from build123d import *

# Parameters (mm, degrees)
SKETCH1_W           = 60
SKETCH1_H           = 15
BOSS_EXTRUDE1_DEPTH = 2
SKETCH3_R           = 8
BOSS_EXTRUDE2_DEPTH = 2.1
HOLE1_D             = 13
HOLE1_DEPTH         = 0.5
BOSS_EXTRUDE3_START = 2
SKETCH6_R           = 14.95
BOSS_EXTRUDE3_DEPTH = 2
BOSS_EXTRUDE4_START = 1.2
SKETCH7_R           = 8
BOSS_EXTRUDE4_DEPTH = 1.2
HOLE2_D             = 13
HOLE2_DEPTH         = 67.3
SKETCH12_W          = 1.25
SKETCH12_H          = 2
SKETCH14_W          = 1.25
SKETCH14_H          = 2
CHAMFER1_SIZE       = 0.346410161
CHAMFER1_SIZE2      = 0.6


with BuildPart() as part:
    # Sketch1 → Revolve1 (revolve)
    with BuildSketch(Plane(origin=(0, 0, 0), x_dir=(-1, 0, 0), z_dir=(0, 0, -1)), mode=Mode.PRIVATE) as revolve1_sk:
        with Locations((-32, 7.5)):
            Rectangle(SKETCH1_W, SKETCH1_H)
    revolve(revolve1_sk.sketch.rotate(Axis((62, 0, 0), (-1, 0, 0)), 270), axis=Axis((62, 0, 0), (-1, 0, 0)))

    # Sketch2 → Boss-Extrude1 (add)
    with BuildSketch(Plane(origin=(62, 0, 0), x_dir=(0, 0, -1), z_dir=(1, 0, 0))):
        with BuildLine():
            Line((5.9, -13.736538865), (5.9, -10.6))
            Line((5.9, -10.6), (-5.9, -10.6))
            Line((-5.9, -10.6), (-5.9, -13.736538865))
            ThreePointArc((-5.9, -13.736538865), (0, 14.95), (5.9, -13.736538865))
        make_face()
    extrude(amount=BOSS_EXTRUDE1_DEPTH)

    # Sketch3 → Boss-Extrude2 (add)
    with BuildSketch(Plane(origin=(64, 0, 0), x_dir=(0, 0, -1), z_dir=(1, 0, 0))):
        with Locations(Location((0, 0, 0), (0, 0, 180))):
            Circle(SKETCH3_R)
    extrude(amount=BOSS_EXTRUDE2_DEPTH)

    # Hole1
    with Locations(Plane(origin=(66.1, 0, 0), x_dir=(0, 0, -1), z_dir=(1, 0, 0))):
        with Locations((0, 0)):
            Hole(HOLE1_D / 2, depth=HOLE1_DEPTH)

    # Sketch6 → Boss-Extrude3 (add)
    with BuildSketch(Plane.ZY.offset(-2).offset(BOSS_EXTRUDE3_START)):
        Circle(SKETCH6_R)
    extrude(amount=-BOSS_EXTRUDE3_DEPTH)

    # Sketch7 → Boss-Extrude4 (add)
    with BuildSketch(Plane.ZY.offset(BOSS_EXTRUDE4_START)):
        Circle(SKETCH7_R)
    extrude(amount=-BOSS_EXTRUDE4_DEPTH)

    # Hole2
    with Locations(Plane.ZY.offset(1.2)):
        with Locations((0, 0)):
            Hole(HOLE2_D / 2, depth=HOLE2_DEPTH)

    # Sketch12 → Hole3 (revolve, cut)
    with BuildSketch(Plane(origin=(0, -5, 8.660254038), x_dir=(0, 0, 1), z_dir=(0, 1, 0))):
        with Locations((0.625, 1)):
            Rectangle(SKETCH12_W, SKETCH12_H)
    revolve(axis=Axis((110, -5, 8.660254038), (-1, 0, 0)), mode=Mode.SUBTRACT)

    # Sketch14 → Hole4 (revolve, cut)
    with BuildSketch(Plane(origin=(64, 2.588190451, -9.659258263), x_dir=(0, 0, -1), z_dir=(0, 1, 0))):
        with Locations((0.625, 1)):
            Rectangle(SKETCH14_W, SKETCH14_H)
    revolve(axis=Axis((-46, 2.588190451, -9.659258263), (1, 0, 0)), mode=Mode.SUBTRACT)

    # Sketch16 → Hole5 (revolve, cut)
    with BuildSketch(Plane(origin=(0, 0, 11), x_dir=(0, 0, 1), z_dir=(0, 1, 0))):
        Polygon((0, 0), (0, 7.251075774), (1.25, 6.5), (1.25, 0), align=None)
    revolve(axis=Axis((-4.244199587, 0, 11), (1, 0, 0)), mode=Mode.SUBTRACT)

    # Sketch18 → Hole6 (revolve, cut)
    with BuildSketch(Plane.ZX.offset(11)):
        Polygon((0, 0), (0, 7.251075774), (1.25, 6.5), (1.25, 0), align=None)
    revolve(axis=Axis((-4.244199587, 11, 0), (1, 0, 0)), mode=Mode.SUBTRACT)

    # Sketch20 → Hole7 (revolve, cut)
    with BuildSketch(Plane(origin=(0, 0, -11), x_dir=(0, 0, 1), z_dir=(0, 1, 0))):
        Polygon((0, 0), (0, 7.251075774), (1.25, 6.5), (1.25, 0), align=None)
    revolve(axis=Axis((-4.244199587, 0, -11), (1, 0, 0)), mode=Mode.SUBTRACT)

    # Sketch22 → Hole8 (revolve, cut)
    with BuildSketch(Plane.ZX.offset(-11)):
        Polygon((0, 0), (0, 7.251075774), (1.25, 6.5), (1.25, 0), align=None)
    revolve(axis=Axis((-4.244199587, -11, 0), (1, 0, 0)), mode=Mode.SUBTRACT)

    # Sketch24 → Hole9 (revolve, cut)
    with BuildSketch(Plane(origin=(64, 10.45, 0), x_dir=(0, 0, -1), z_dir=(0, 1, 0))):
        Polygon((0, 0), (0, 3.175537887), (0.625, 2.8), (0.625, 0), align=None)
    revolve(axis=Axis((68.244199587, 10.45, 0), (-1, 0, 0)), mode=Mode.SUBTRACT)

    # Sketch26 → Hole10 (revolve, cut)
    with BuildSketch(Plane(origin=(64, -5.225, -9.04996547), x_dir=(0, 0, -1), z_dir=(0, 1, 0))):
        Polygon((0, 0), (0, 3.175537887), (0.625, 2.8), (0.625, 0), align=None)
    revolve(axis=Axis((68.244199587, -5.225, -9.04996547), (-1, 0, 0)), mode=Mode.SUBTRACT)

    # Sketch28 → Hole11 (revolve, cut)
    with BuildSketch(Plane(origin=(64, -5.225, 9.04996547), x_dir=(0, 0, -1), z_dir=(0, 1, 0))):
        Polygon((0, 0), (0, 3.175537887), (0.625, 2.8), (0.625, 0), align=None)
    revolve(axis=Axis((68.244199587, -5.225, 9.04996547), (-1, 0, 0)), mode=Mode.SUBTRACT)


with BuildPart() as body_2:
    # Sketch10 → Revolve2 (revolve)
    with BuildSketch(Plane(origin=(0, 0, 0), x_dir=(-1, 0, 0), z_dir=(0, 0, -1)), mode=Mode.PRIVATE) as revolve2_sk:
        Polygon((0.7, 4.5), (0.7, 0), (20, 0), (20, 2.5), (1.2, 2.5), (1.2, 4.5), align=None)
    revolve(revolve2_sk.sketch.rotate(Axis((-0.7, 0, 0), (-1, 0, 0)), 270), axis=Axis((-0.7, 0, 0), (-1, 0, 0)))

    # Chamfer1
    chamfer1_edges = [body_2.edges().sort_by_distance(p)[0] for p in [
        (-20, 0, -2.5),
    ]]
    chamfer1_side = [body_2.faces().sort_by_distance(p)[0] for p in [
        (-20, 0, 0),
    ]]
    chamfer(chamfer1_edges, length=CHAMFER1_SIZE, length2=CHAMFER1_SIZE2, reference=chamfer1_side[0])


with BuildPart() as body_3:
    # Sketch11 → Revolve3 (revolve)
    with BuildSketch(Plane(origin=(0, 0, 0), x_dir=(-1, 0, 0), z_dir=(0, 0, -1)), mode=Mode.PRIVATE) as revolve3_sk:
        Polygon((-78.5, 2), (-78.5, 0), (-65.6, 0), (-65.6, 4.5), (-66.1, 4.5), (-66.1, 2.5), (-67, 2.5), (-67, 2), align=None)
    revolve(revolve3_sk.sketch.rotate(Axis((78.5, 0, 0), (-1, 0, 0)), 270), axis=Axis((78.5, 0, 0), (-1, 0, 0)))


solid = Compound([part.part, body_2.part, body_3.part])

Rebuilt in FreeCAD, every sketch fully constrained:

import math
import FreeCAD as App
import Part
import Sketcher
from FreeCAD import Vector
Q = App.Units.Quantity


def edges_at(feature, points):
    """Names of the edges that pass closest to the given points."""
    edges = feature.Shape.Edges
    near = lambda p: min(range(len(edges)), key=lambda i: edges[i].distToShape(Part.Vertex(*p))[0])
    return sorted({f"Edge{near(p) + 1}" for p in points})


def add_polygon(sketch, points):
    """Adds a closed chain of lines whose ends are joined by coincident constraints."""
    first, n = sketch.GeometryCount, len(points)
    for a, b in zip(points, points[1:] + points[:1]):
        sketch.addGeometry(Part.LineSegment(App.Vector(*a, 0), App.Vector(*b, 0)), False)
    for i in range(n):
        sketch.addConstraint(Sketcher.Constraint("Coincident", first + i, 2, first + (i + 1) % n, 1))

doc = App.newDocument("Part")
body = doc.addObject("PartDesign::Body", "Body")

sketch1 = body.newObject("Sketcher::SketchObject", "Sketch")
sketch1.AttachmentSupport = (doc.getObject("XY_Plane"), [""])
sketch1.MapMode = "FlatFace"
add_polygon(sketch1, [(62, 15), (62, 0), (2, 0), (2, 15)])
sketch1.addConstraint(Sketcher.Constraint("Vertical", 0))
sketch1.addConstraint(Sketcher.Constraint("Horizontal", 1))
sketch1.addConstraint(Sketcher.Constraint("Vertical", 2))
sketch1.addConstraint(Sketcher.Constraint("Horizontal", 3))
sketch1.addConstraint(Sketcher.Constraint("PointOnObject", 0, 2, -1))
sketch1.addConstraint(Sketcher.Constraint("DistanceX", 1, 2, 1, 1, Q("60 mm")))
sketch1.addConstraint(Sketcher.Constraint("DistanceY", 0, 2, 0, 1, Q("15 mm")))
sketch1.addConstraint(Sketcher.Constraint("DistanceX", -1, 1, 0, 2, Q("62 mm")))
revolution = body.newObject("PartDesign::Revolution", "Revolution")
revolution.Profile = sketch1
revolution.ReferenceAxis = (sketch1, ["H_Axis"])
revolution.Angle = 360

sketch2 = body.newObject("Sketcher::SketchObject", "Sketch001")
sketch2.AttachmentSupport = (doc.getObject("YZ_Plane"), [""])
sketch2.MapMode = "FlatFace"
sketch2.AttachmentOffset = App.Placement(Vector(0, 0, 62), App.Rotation())
sketch2.addGeometry(Part.LineSegment(Vector(-10.6, -5.9, 0), Vector(-13.736539, -5.9, 0)), False)
sketch2.addGeometry(Part.ArcOfCircle(Part.Circle(Vector(0, 0, 0), Vector(0, 0, 1), 14.95), math.radians(-156.755926), math.radians(156.755926)), False)
sketch2.addGeometry(Part.LineSegment(Vector(-13.736539, 5.9, 0), Vector(-10.6, 5.9, 0)), False)
sketch2.addGeometry(Part.LineSegment(Vector(-10.6, 5.9, 0), Vector(-10.6, -5.9, 0)), False)
sketch2.addConstraint(Sketcher.Constraint("Coincident", 0, 2, 1, 1))
sketch2.addConstraint(Sketcher.Constraint("Coincident", 1, 2, 2, 1))
sketch2.addConstraint(Sketcher.Constraint("Coincident", 2, 2, 3, 1))
sketch2.addConstraint(Sketcher.Constraint("Coincident", 3, 2, 0, 1))
sketch2.addConstraint(Sketcher.Constraint("Horizontal", 0))
sketch2.addConstraint(Sketcher.Constraint("Horizontal", 2))
sketch2.addConstraint(Sketcher.Constraint("Vertical", 3))
sketch2.addConstraint(Sketcher.Constraint("Coincident", 1, 3, -1, 1))
sketch2.addConstraint(Sketcher.Constraint("Vertical", 0, 2, 1, 2))
sketch2.addConstraint(Sketcher.Constraint("Radius", 1, Q("14.95 mm")))
sketch2.addConstraint(Sketcher.Constraint("DistanceY", 3, 2, 3, 1, Q("11.8 mm")))
sketch2.addConstraint(Sketcher.Constraint("DistanceX", 2, 2, -1, 1, Q("10.6 mm")))
pad1 = body.newObject("PartDesign::Pad", "Pad")
pad1.Profile = sketch2
pad1.Length = 2

sketch3 = body.newObject("Sketcher::SketchObject", "Sketch002")
sketch3.AttachmentSupport = (doc.getObject("YZ_Plane"), [""])
sketch3.MapMode = "FlatFace"
sketch3.AttachmentOffset = App.Placement(Vector(0, 0, 64), App.Rotation())
sketch3.addGeometry(Part.Circle(Vector(0, 0, 0), Vector(0, 0, 1), 8), False)
sketch3.addConstraint(Sketcher.Constraint("Coincident", 0, 3, -1, 1))
sketch3.addConstraint(Sketcher.Constraint("Diameter", 0, Q("16 mm")))
pad2 = body.newObject("PartDesign::Pad", "Pad001")
pad2.Profile = sketch3
pad2.Length = 2.1

sketch4 = body.newObject("Sketcher::SketchObject", "Sketch003")
sketch4.AttachmentSupport = (doc.getObject("YZ_Plane"), [""])
sketch4.MapMode = "FlatFace"
sketch4.AttachmentOffset = App.Placement(Vector(0, 0, 66.1), App.Rotation())
sketch4.addGeometry(Part.Circle(Vector(0, 0, 0), Vector(0, 0, 1), 6.5), False)
sketch4.addConstraint(Sketcher.Constraint("Coincident", 0, 3, -1, 1))
sketch4.addConstraint(Sketcher.Constraint("Diameter", 0, Q("13 mm")))
doc.recompute()
hole = body.newObject("PartDesign::Hole", "Hole")
hole.Profile = sketch4
hole.ThreadType = "None"
hole.Diameter = 13
hole.DepthType = "Dimension"
hole.Depth = 0.5
hole.DrillPoint = "Flat"

sketch5 = body.newObject("Sketcher::SketchObject", "Sketch004")
sketch5.AttachmentSupport = (doc.getObject("YZ_Plane"), [""])
sketch5.MapMode = "FlatFace"
sketch5.addGeometry(Part.Circle(Vector(0, 0, 0), Vector(0, 0, 1), 14.95), False)
sketch5.addConstraint(Sketcher.Constraint("Coincident", 0, 3, -1, 1))
sketch5.addConstraint(Sketcher.Constraint("Diameter", 0, Q("29.9 mm")))
pad3 = body.newObject("PartDesign::Pad", "Pad002")
pad3.Profile = sketch5
pad3.Length = 2

sketch6 = body.newObject("Sketcher::SketchObject", "Sketch005")
sketch6.AttachmentSupport = (doc.getObject("YZ_Plane"), [""])
sketch6.MapMode = "FlatFace"
sketch6.AttachmentOffset = App.Placement(Vector(0, 0, -1.2), App.Rotation())
sketch6.addGeometry(Part.Circle(Vector(0, 0, 0), Vector(0, 0, 1), 8), False)
sketch6.addConstraint(Sketcher.Constraint("Coincident", 0, 3, -1, 1))
sketch6.addConstraint(Sketcher.Constraint("Diameter", 0, Q("16 mm")))
pad4 = body.newObject("PartDesign::Pad", "Pad003")
pad4.Profile = sketch6
pad4.Length = 1.2

sketch7 = body.newObject("Sketcher::SketchObject", "Sketch006")
sketch7.AttachmentSupport = (doc.getObject("YZ_Plane"), [""])
sketch7.MapMode = "FlatFace"
sketch7.AttachmentOffset = App.Placement(Vector(0, 0, -1.2), App.Rotation())
sketch7.addGeometry(Part.Circle(Vector(0, 0, 0), Vector(0, 0, 1), 6.5), False)
sketch7.addConstraint(Sketcher.Constraint("Coincident", 0, 3, -1, 1))
sketch7.addConstraint(Sketcher.Constraint("Diameter", 0, Q("13 mm")))
doc.recompute()
hole2 = body.newObject("PartDesign::Hole", "Hole001")
hole2.Profile = sketch7
hole2.ThreadType = "None"
hole2.Diameter = 13
hole2.DepthType = "Dimension"
hole2.Depth = 67.3
hole2.DrillPoint = "Flat"
hole2.Reversed = True

sketch8 = body.newObject("Sketcher::SketchObject", "Sketch007")
sketch8.AttachmentSupport = (doc.getObject("XZ_Plane"), [""])
sketch8.MapMode = "FlatFace"
sketch8.AttachmentOffset = App.Placement(Vector(0, 0, 5), App.Rotation())
add_polygon(sketch8, [(2, 8.660254), (0, 8.660254), (0, 9.910254), (2, 9.910254)])
sketch8.addGeometry(Part.LineSegment(Vector(2, 8.660254, 0), Vector(0, 8.660254, 0)), True)
sketch8.addConstraint(Sketcher.Constraint("Horizontal", 0))
sketch8.addConstraint(Sketcher.Constraint("Vertical", 1))
sketch8.addConstraint(Sketcher.Constraint("Horizontal", 2))
sketch8.addConstraint(Sketcher.Constraint("Vertical", 3))
sketch8.addConstraint(Sketcher.Constraint("Horizontal", 4))
sketch8.addConstraint(Sketcher.Constraint("Coincident", 4, 1, 3, 2))
sketch8.addConstraint(Sketcher.Constraint("PointOnObject", 0, 2, -2))
sketch8.addConstraint(Sketcher.Constraint("PointOnObject", 4, 2, -2))
sketch8.addConstraint(Sketcher.Constraint("DistanceX", 0, 2, 0, 1, Q("2 mm")))
sketch8.addConstraint(Sketcher.Constraint("DistanceY", 1, 1, 1, 2, Q("1.25 mm")))
sketch8.addConstraint(Sketcher.Constraint("DistanceY", -1, 1, 0, 2, Q("8.660254 mm")))
groove = body.newObject("PartDesign::Groove", "Groove")
groove.Profile = sketch8
groove.ReferenceAxis = (sketch8, ["Axis0"])
groove.Angle = 360

sketch9 = body.newObject("Sketcher::SketchObject", "Sketch008")
sketch9.AttachmentSupport = (doc.getObject("XZ_Plane"), [""])
sketch9.MapMode = "FlatFace"
sketch9.AttachmentOffset = App.Placement(Vector(0, 0, -2.58819), App.Rotation())
add_polygon(sketch9, [(62, -9.659258), (64, -9.659258), (64, -10.909258), (62, -10.909258)])
sketch9.addGeometry(Part.LineSegment(Vector(62, -9.659258, 0), Vector(64, -9.659258, 0)), True)
sketch9.addConstraint(Sketcher.Constraint("Horizontal", 0))
sketch9.addConstraint(Sketcher.Constraint("Vertical", 1))
sketch9.addConstraint(Sketcher.Constraint("Horizontal", 2))
sketch9.addConstraint(Sketcher.Constraint("Vertical", 3))
sketch9.addConstraint(Sketcher.Constraint("Horizontal", 4))
sketch9.addConstraint(Sketcher.Constraint("Coincident", 4, 1, 3, 2))
sketch9.addConstraint(Sketcher.Constraint("Vertical", 1, 2, 4, 2))
sketch9.addConstraint(Sketcher.Constraint("DistanceX", 0, 1, 0, 2, Q("2 mm")))
sketch9.addConstraint(Sketcher.Constraint("DistanceX", -1, 1, 0, 2, Q("64 mm")))
sketch9.addConstraint(Sketcher.Constraint("DistanceY", 1, 2, 1, 1, Q("1.25 mm")))
sketch9.addConstraint(Sketcher.Constraint("DistanceY", 0, 2, -1, 1, Q("9.659258 mm")))
groove2 = body.newObject("PartDesign::Groove", "Groove001")
groove2.Profile = sketch9
groove2.ReferenceAxis = (sketch9, ["Axis0"])
groove2.Angle = 360

sketch10 = body.newObject("Sketcher::SketchObject", "Sketch009")
sketch10.AttachmentSupport = (doc.getObject("XZ_Plane"), [""])
sketch10.MapMode = "FlatFace"
add_polygon(sketch10, [(7.251076, 11), (0, 11), (0, 12.25), (6.5, 12.25)])
sketch10.addGeometry(Part.LineSegment(Vector(0, 11, 0), Vector(7.251076, 11, 0)), True)
sketch10.addConstraint(Sketcher.Constraint("Horizontal", 0))
sketch10.addConstraint(Sketcher.Constraint("Vertical", 1))
sketch10.addConstraint(Sketcher.Constraint("Horizontal", 2))
sketch10.addConstraint(Sketcher.Constraint("Horizontal", 4))
sketch10.addConstraint(Sketcher.Constraint("Coincident", 4, 1, 0, 2))
sketch10.addConstraint(Sketcher.Constraint("PointOnObject", 0, 2, -2))
sketch10.addConstraint(Sketcher.Constraint("Equal", 0, 4))
sketch10.addConstraint(Sketcher.Constraint("Angle", 3, Q("-59 deg")))
sketch10.addConstraint(Sketcher.Constraint("DistanceX", 2, 1, 2, 2, Q("6.5 mm")))
sketch10.addConstraint(Sketcher.Constraint("DistanceY", -1, 1, 0, 2, Q("11 mm")))
sketch10.addConstraint(Sketcher.Constraint("DistanceY", 1, 1, 1, 2, Q("1.25 mm")))
groove3 = body.newObject("PartDesign::Groove", "Groove002")
groove3.Profile = sketch10
groove3.ReferenceAxis = (sketch10, ["Axis0"])
groove3.Angle = 360

sketch11 = body.newObject("Sketcher::SketchObject", "Sketch010")
sketch11.AttachmentSupport = (doc.getObject("XZ_Plane"), [""])
sketch11.MapMode = "FlatFace"
sketch11.AttachmentOffset = App.Placement(Vector(0, 0, -11), App.Rotation())
add_polygon(sketch11, [(7.251076, 0), (0, 0), (0, 1.25), (6.5, 1.25)])
sketch11.addConstraint(Sketcher.Constraint("Horizontal", 0))
sketch11.addConstraint(Sketcher.Constraint("Vertical", 1))
sketch11.addConstraint(Sketcher.Constraint("Horizontal", 2))
sketch11.addConstraint(Sketcher.Constraint("Coincident", 0, 2, -1, 1))
sketch11.addConstraint(Sketcher.Constraint("Angle", 3, Q("-59 deg")))
sketch11.addConstraint(Sketcher.Constraint("DistanceX", 2, 1, 2, 2, Q("6.5 mm")))
sketch11.addConstraint(Sketcher.Constraint("DistanceY", 1, 1, 1, 2, Q("1.25 mm")))
groove4 = body.newObject("PartDesign::Groove", "Groove003")
groove4.Profile = sketch11
groove4.ReferenceAxis = (sketch11, ["H_Axis"])
groove4.Angle = 360

sketch12 = body.newObject("Sketcher::SketchObject", "Sketch011")
sketch12.AttachmentSupport = (doc.getObject("XZ_Plane"), [""])
sketch12.MapMode = "FlatFace"
add_polygon(sketch12, [(7.251076, -11), (0, -11), (0, -9.75), (6.5, -9.75)])
sketch12.addGeometry(Part.LineSegment(Vector(0, -11, 0), Vector(7.251076, -11, 0)), True)
sketch12.addConstraint(Sketcher.Constraint("Horizontal", 0))
sketch12.addConstraint(Sketcher.Constraint("Vertical", 1))
sketch12.addConstraint(Sketcher.Constraint("Horizontal", 2))
sketch12.addConstraint(Sketcher.Constraint("Horizontal", 4))
sketch12.addConstraint(Sketcher.Constraint("Coincident", 4, 1, 0, 2))
sketch12.addConstraint(Sketcher.Constraint("PointOnObject", 0, 2, -2))
sketch12.addConstraint(Sketcher.Constraint("Equal", 0, 4))
sketch12.addConstraint(Sketcher.Constraint("Angle", 3, Q("-59 deg")))
sketch12.addConstraint(Sketcher.Constraint("DistanceX", 2, 1, 2, 2, Q("6.5 mm")))
sketch12.addConstraint(Sketcher.Constraint("DistanceY", 0, 2, -1, 1, Q("11 mm")))
sketch12.addConstraint(Sketcher.Constraint("DistanceY", 1, 1, 1, 2, Q("1.25 mm")))
groove5 = body.newObject("PartDesign::Groove", "Groove004")
groove5.Profile = sketch12
groove5.ReferenceAxis = (sketch12, ["Axis0"])
groove5.Angle = 360

sketch13 = body.newObject("Sketcher::SketchObject", "Sketch012")
sketch13.AttachmentSupport = (doc.getObject("XZ_Plane"), [""])
sketch13.MapMode = "FlatFace"
sketch13.AttachmentOffset = App.Placement(Vector(0, 0, 11), App.Rotation())
add_polygon(sketch13, [(7.251076, 0), (0, 0), (0, 1.25), (6.5, 1.25)])
sketch13.addConstraint(Sketcher.Constraint("Horizontal", 0))
sketch13.addConstraint(Sketcher.Constraint("Vertical", 1))
sketch13.addConstraint(Sketcher.Constraint("Horizontal", 2))
sketch13.addConstraint(Sketcher.Constraint("Coincident", 0, 2, -1, 1))
sketch13.addConstraint(Sketcher.Constraint("Angle", 3, Q("-59 deg")))
sketch13.addConstraint(Sketcher.Constraint("DistanceX", 2, 1, 2, 2, Q("6.5 mm")))
sketch13.addConstraint(Sketcher.Constraint("DistanceY", 1, 1, 1, 2, Q("1.25 mm")))
groove6 = body.newObject("PartDesign::Groove", "Groove005")
groove6.Profile = sketch13
groove6.ReferenceAxis = (sketch13, ["H_Axis"])
groove6.Angle = 360

sketch14 = body.newObject("Sketcher::SketchObject", "Sketch013")
sketch14.AttachmentSupport = (doc.getObject("XZ_Plane"), [""])
sketch14.MapMode = "FlatFace"
sketch14.AttachmentOffset = App.Placement(Vector(0, 0, -10.45), App.Rotation())
add_polygon(sketch14, [(60.824462, 0), (64, 0), (64, -0.625), (61.2, -0.625)])
sketch14.addConstraint(Sketcher.Constraint("Horizontal", 0))
sketch14.addConstraint(Sketcher.Constraint("Vertical", 1))
sketch14.addConstraint(Sketcher.Constraint("Horizontal", 2))
sketch14.addConstraint(Sketcher.Constraint("PointOnObject", 0, 2, -1))
sketch14.addConstraint(Sketcher.Constraint("Angle", 3, Q("121 deg")))
sketch14.addConstraint(Sketcher.Constraint("DistanceX", 2, 2, 2, 1, Q("2.8 mm")))
sketch14.addConstraint(Sketcher.Constraint("DistanceX", -1, 1, 0, 2, Q("64 mm")))
sketch14.addConstraint(Sketcher.Constraint("DistanceY", 1, 2, 1, 1, Q("0.625 mm")))
groove7 = body.newObject("PartDesign::Groove", "Groove006")
groove7.Profile = sketch14
groove7.ReferenceAxis = (sketch14, ["H_Axis"])
groove7.Angle = 360

sketch15 = body.newObject("Sketcher::SketchObject", "Sketch014")
sketch15.AttachmentSupport = (doc.getObject("XZ_Plane"), [""])
sketch15.MapMode = "FlatFace"
sketch15.AttachmentOffset = App.Placement(Vector(0, 0, 5.225), App.Rotation())
add_polygon(sketch15, [(60.824462, -9.049965), (64, -9.049965), (64, -9.674965), (61.2, -9.674965)])
sketch15.addGeometry(Part.LineSegment(Vector(64, -9.049965, 0), Vector(60.824462, -9.049965, 0)), True)
sketch15.addConstraint(Sketcher.Constraint("Horizontal", 0))
sketch15.addConstraint(Sketcher.Constraint("Vertical", 1))
sketch15.addConstraint(Sketcher.Constraint("Horizontal", 2))
sketch15.addConstraint(Sketcher.Constraint("Horizontal", 4))
sketch15.addConstraint(Sketcher.Constraint("Coincident", 4, 1, 0, 2))
sketch15.addConstraint(Sketcher.Constraint("Equal", 0, 4))
sketch15.addConstraint(Sketcher.Constraint("Angle", 3, Q("121 deg")))
sketch15.addConstraint(Sketcher.Constraint("DistanceX", 2, 2, 2, 1, Q("2.8 mm")))
sketch15.addConstraint(Sketcher.Constraint("DistanceX", -1, 1, 0, 2, Q("64 mm")))
sketch15.addConstraint(Sketcher.Constraint("DistanceY", 1, 2, 1, 1, Q("0.625 mm")))
sketch15.addConstraint(Sketcher.Constraint("DistanceY", 0, 2, -1, 1, Q("9.049965 mm")))
groove8 = body.newObject("PartDesign::Groove", "Groove007")
groove8.Profile = sketch15
groove8.ReferenceAxis = (sketch15, ["Axis0"])
groove8.Angle = 360

sketch16 = body.newObject("Sketcher::SketchObject", "Sketch015")
sketch16.AttachmentSupport = (doc.getObject("XZ_Plane"), [""])
sketch16.MapMode = "FlatFace"
sketch16.AttachmentOffset = App.Placement(Vector(0, 0, 5.225), App.Rotation())
add_polygon(sketch16, [(60.824462, 9.049965), (64, 9.049965), (64, 8.424965), (61.2, 8.424965)])
sketch16.addGeometry(Part.LineSegment(Vector(64, 9.049965, 0), Vector(60.824462, 9.049965, 0)), True)
sketch16.addConstraint(Sketcher.Constraint("Horizontal", 0))
sketch16.addConstraint(Sketcher.Constraint("Vertical", 1))
sketch16.addConstraint(Sketcher.Constraint("Horizontal", 2))
sketch16.addConstraint(Sketcher.Constraint("Horizontal", 4))
sketch16.addConstraint(Sketcher.Constraint("Coincident", 4, 1, 0, 2))
sketch16.addConstraint(Sketcher.Constraint("Equal", 0, 4))
sketch16.addConstraint(Sketcher.Constraint("Angle", 3, Q("121 deg")))
sketch16.addConstraint(Sketcher.Constraint("DistanceX", 2, 2, 2, 1, Q("2.8 mm")))
sketch16.addConstraint(Sketcher.Constraint("DistanceX", -1, 1, 0, 2, Q("64 mm")))
sketch16.addConstraint(Sketcher.Constraint("DistanceY", 1, 2, 1, 1, Q("0.625 mm")))
sketch16.addConstraint(Sketcher.Constraint("DistanceY", -1, 1, 0, 2, Q("9.049965 mm")))
groove9 = body.newObject("PartDesign::Groove", "Groove008")
groove9.Profile = sketch16
groove9.ReferenceAxis = (sketch16, ["Axis0"])
groove9.Angle = 360
body2 = doc.addObject("PartDesign::Body", "Body001")

sketch17 = body2.newObject("Sketcher::SketchObject", "Sketch016")
sketch17.AttachmentSupport = (doc.getObject("XY_Plane001"), [""])
sketch17.MapMode = "FlatFace"
add_polygon(sketch17, [(-0.7, 4.5), (-0.7, 0), (-20, 0), (-20, 2.5), (-1.2, 2.5), (-1.2, 4.5)])
sketch17.addConstraint(Sketcher.Constraint("Vertical", 0))
sketch17.addConstraint(Sketcher.Constraint("Horizontal", 1))
sketch17.addConstraint(Sketcher.Constraint("Vertical", 2))
sketch17.addConstraint(Sketcher.Constraint("Horizontal", 3))
sketch17.addConstraint(Sketcher.Constraint("Vertical", 4))
sketch17.addConstraint(Sketcher.Constraint("Horizontal", 5))
sketch17.addConstraint(Sketcher.Constraint("PointOnObject", 0, 2, -1))
sketch17.addConstraint(Sketcher.Constraint("DistanceY", 4, 1, 4, 2, Q("2 mm")))
sketch17.addConstraint(Sketcher.Constraint("DistanceX", 1, 2, 1, 1, Q("19.3 mm")))
sketch17.addConstraint(Sketcher.Constraint("DistanceX", 3, 1, 3, 2, Q("18.8 mm")))
sketch17.addConstraint(Sketcher.Constraint("DistanceY", 0, 2, 0, 1, Q("4.5 mm")))
sketch17.addConstraint(Sketcher.Constraint("DistanceX", 1, 2, -1, 1, Q("20 mm")))
revolution2 = body2.newObject("PartDesign::Revolution", "Revolution001")
revolution2.Profile = sketch17
revolution2.ReferenceAxis = (sketch17, ["H_Axis"])
revolution2.Angle = 360
doc.recompute()

chamfer = body2.newObject("PartDesign::Chamfer", "Chamfer")
chamfer.Base = (revolution2, edges_at(revolution2, [(-20, 0, -2.5)]))
chamfer.ChamferType = "Two distances"
chamfer.Size = 0.34641
chamfer.Size2 = 0.6
body3 = doc.addObject("PartDesign::Body", "Body002")

sketch18 = body3.newObject("Sketcher::SketchObject", "Sketch017")
sketch18.AttachmentSupport = (doc.getObject("XY_Plane002"), [""])
sketch18.MapMode = "FlatFace"
add_polygon(sketch18, [(78.5, 2), (78.5, 0), (65.6, 0), (65.6, 4.5), (66.1, 4.5), (66.1, 2.5), (67, 2.5), (67, 2)])
sketch18.addConstraint(Sketcher.Constraint("Vertical", 0))
sketch18.addConstraint(Sketcher.Constraint("Horizontal", 1))
sketch18.addConstraint(Sketcher.Constraint("Vertical", 2))
sketch18.addConstraint(Sketcher.Constraint("Horizontal", 3))
sketch18.addConstraint(Sketcher.Constraint("Vertical", 4))
sketch18.addConstraint(Sketcher.Constraint("Horizontal", 5))
sketch18.addConstraint(Sketcher.Constraint("Vertical", 6))
sketch18.addConstraint(Sketcher.Constraint("Horizontal", 7))
sketch18.addConstraint(Sketcher.Constraint("PointOnObject", 0, 2, -1))
sketch18.addConstraint(Sketcher.Constraint("Equal", 0, 4))
sketch18.addConstraint(Sketcher.Constraint("Equal", 3, 6))
sketch18.addConstraint(Sketcher.Constraint("DistanceY", 0, 2, 0, 1, Q("2 mm")))
sketch18.addConstraint(Sketcher.Constraint("DistanceX", 1, 2, 1, 1, Q("12.9 mm")))
sketch18.addConstraint(Sketcher.Constraint("DistanceX", 3, 1, 3, 2, Q("0.5 mm")))
sketch18.addConstraint(Sketcher.Constraint("DistanceX", 5, 1, 5, 2, Q("0.9 mm")))
sketch18.addConstraint(Sketcher.Constraint("DistanceX", -1, 1, 5, 2, Q("67 mm")))
revolution3 = body3.newObject("PartDesign::Revolution", "Revolution002")
revolution3.Profile = sketch18
revolution3.ReferenceAxis = (sketch18, ["H_Axis"])
revolution3.Angle = 360

doc.recompute()
